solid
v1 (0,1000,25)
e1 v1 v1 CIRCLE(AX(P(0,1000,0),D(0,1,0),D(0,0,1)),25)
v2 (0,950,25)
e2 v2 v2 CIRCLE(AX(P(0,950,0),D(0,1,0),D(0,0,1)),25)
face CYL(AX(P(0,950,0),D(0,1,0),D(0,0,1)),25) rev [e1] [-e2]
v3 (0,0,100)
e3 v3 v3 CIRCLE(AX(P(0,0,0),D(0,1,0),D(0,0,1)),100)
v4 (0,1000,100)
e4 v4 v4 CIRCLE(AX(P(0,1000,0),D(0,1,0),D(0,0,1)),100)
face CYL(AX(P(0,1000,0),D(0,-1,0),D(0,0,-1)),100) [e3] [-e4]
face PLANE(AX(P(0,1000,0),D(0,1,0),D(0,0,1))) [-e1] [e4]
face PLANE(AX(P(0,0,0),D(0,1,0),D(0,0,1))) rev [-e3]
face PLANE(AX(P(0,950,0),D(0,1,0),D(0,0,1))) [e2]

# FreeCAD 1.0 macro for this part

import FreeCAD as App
import Part
import Sketcher

V = App.Vector

doc = App.newDocument("Part")
body = doc.addObject("PartDesign::Body", "Body")

# Sketch on XZ plane
sketch1 = body.newObject("Sketcher::SketchObject", "Sketch")
sketch1.AttachmentSupport = (doc.getObject("XZ_Plane"), [""])
sketch1.MapMode = "FlatFace"
sketch1.addGeometry(Part.Circle(V(0, 0, 0), V(0, 0, 1), 100), False)
sketch1.addConstraint([
    Sketcher.Constraint("Coincident", 0, 3, -1, 1),
    Sketcher.Constraint("Diameter", 0, 200.0),
])
pad1 = body.newObject("PartDesign::Pad", "Pad")
pad1.Profile = sketch1
pad1.Length = 1000
pad1.Reversed = True

# Sketch on XZ plane
sketch2 = body.newObject("Sketcher::SketchObject", "Sketch001")
sketch2.AttachmentSupport = (doc.getObject("XZ_Plane"), [""])
sketch2.MapMode = "FlatFace"
sketch2.AttachmentOffset = App.Placement(V(0, 0, -1000), App.Rotation())
sketch2.addGeometry(Part.Circle(V(0, 0, 0), V(0, 0, 1), 25), False)
sketch2.addConstraint([
    Sketcher.Constraint("Coincident", 0, 3, -1, 1),
    Sketcher.Constraint("Diameter", 0, 50.0),
])
pocket1 = body.newObject("PartDesign::Pocket", "Pocket")
pocket1.Profile = sketch2
pocket1.Length = 50
pocket1.Reversed = True

doc.recompute()
